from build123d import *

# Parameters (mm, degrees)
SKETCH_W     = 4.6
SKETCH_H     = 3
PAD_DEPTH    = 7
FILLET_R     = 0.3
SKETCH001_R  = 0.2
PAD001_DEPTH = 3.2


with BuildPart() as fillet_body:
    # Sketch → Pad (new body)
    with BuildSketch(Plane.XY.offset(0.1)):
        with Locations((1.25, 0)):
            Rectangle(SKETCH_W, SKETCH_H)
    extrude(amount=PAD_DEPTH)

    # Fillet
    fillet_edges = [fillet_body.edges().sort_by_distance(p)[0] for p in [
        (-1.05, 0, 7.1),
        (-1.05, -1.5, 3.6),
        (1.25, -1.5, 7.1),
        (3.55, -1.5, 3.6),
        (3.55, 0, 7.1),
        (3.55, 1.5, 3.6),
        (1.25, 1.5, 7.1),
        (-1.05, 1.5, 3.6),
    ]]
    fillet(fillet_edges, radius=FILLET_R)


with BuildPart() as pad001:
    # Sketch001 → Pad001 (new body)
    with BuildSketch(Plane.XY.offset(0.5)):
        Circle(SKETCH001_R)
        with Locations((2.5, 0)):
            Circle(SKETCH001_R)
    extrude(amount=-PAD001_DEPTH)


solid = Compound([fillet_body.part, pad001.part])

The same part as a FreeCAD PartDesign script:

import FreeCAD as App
import Part
import Sketcher
from FreeCAD import Vector


def edges_at(feature, points):
    """Names of the edges that pass closest to the given points."""
    edges = feature.Shape.Edges
    near = lambda p: min(range(len(edges)), key=lambda i: edges[i].distToShape(Part.Vertex(*p))[0])
    return sorted({f"Edge{near(p) + 1}" for p in points})


def add_polygon(sketch, points):
    """Adds a closed chain of lines whose ends are joined by coincident constraints."""
    first, n = sketch.GeometryCount, len(points)
    for a, b in zip(points, points[1:] + points[:1]):
        sketch.addGeometry(Part.LineSegment(App.Vector(*a, 0), App.Vector(*b, 0)), False)
    for i in range(n):
        sketch.addConstraint(Sketcher.Constraint("Coincident", first + i, 2, first + (i + 1) % n, 1))

doc = App.newDocument("Part")
body = doc.addObject("PartDesign::Body", "Body")

# Sketch on XY plane
sketch1 = body.newObject("Sketcher::SketchObject", "Sketch")
sketch1.AttachmentSupport = (doc.getObject("XY_Plane"), [""])
sketch1.MapMode = "FlatFace"
sketch1.AttachmentOffset = App.Placement(Vector(0, 0, 0.1), App.Rotation())
add_polygon(sketch1, [(-1.1, 1.5), (-1.1, -1.5), (3.5, -1.5), (3.5, 1.5)])  # lines 0-3
sketch1.addConstraint(Sketcher.Constraint("Vertical", 0))
sketch1.addConstraint(Sketcher.Constraint("Horizontal", 1))
sketch1.addConstraint(Sketcher.Constraint("Vertical", 2))
sketch1.addConstraint(Sketcher.Constraint("Horizontal", 3))
sketch1.addConstraint(Sketcher.Constraint("DistanceY", 0, 2, 0, 1, 3.0))
sketch1.addConstraint(Sketcher.Constraint("DistanceX", 1, 1, 1, 2, 4.6))
sketch1.addConstraint(Sketcher.Constraint("DistanceY", 0, 2, -1, 1, 1.5))
sketch1.addConstraint(Sketcher.Constraint("DistanceX", 0, 2, -1, 1, 1.05))
pad1 = body.newObject("PartDesign::Pad", "Pad")
pad1.Profile = sketch1
pad1.Length = 7
doc.recompute()

fillet = body.newObject("PartDesign::Fillet", "Fillet")
fillet.Base = (pad1, edges_at(pad1, [
    (-1.05, 0, 7.1),
    (-1.05, -1.5, 3.6),
    (1.25, -1.5, 7.1),
    (3.55, -1.5, 3.6),
    (3.55, 0, 7.1),
    (3.55, 1.5, 3.6),
    (1.25, 1.5, 7.1),
    (-1.05, 1.5, 3.6),
]))
fillet.Radius = 0.3
body2 = doc.addObject("PartDesign::Body", "Body001")
body2.AllowCompound = True

# Sketch on XY plane
sketch2 = body2.newObject("Sketcher::SketchObject", "Sketch001")
sketch2.AttachmentSupport = (doc.getObject("XY_Plane001"), [""])
sketch2.MapMode = "FlatFace"
sketch2.AttachmentOffset = App.Placement(Vector(0, 0, 0.5), App.Rotation())
sketch2.addGeometry(Part.Circle(Vector(0, 0, 0), Vector(0, 0, 1), 0.2), False)
sketch2.addGeometry(Part.Circle(Vector(2.5, 0, 0), Vector(0, 0, 1), 0.2), False)
sketch2.addConstraint(Sketcher.Constraint("Coincident", 0, 3, -1, 1))
sketch2.addConstraint(Sketcher.Constraint("Equal", 0, 1))
sketch2.addConstraint(Sketcher.Constraint("PointOnObject", 1, 3, -1))
sketch2.addConstraint(Sketcher.Constraint("Diameter", 0, 0.4))
sketch2.addConstraint(Sketcher.Constraint("DistanceX", -1, 1, 1, 3, 2.5))
pad2 = body2.newObject("PartDesign::Pad", "Pad001")
pad2.Profile = sketch2
pad2.Length = 3.2
pad2.Reversed = True

doc.recompute()
